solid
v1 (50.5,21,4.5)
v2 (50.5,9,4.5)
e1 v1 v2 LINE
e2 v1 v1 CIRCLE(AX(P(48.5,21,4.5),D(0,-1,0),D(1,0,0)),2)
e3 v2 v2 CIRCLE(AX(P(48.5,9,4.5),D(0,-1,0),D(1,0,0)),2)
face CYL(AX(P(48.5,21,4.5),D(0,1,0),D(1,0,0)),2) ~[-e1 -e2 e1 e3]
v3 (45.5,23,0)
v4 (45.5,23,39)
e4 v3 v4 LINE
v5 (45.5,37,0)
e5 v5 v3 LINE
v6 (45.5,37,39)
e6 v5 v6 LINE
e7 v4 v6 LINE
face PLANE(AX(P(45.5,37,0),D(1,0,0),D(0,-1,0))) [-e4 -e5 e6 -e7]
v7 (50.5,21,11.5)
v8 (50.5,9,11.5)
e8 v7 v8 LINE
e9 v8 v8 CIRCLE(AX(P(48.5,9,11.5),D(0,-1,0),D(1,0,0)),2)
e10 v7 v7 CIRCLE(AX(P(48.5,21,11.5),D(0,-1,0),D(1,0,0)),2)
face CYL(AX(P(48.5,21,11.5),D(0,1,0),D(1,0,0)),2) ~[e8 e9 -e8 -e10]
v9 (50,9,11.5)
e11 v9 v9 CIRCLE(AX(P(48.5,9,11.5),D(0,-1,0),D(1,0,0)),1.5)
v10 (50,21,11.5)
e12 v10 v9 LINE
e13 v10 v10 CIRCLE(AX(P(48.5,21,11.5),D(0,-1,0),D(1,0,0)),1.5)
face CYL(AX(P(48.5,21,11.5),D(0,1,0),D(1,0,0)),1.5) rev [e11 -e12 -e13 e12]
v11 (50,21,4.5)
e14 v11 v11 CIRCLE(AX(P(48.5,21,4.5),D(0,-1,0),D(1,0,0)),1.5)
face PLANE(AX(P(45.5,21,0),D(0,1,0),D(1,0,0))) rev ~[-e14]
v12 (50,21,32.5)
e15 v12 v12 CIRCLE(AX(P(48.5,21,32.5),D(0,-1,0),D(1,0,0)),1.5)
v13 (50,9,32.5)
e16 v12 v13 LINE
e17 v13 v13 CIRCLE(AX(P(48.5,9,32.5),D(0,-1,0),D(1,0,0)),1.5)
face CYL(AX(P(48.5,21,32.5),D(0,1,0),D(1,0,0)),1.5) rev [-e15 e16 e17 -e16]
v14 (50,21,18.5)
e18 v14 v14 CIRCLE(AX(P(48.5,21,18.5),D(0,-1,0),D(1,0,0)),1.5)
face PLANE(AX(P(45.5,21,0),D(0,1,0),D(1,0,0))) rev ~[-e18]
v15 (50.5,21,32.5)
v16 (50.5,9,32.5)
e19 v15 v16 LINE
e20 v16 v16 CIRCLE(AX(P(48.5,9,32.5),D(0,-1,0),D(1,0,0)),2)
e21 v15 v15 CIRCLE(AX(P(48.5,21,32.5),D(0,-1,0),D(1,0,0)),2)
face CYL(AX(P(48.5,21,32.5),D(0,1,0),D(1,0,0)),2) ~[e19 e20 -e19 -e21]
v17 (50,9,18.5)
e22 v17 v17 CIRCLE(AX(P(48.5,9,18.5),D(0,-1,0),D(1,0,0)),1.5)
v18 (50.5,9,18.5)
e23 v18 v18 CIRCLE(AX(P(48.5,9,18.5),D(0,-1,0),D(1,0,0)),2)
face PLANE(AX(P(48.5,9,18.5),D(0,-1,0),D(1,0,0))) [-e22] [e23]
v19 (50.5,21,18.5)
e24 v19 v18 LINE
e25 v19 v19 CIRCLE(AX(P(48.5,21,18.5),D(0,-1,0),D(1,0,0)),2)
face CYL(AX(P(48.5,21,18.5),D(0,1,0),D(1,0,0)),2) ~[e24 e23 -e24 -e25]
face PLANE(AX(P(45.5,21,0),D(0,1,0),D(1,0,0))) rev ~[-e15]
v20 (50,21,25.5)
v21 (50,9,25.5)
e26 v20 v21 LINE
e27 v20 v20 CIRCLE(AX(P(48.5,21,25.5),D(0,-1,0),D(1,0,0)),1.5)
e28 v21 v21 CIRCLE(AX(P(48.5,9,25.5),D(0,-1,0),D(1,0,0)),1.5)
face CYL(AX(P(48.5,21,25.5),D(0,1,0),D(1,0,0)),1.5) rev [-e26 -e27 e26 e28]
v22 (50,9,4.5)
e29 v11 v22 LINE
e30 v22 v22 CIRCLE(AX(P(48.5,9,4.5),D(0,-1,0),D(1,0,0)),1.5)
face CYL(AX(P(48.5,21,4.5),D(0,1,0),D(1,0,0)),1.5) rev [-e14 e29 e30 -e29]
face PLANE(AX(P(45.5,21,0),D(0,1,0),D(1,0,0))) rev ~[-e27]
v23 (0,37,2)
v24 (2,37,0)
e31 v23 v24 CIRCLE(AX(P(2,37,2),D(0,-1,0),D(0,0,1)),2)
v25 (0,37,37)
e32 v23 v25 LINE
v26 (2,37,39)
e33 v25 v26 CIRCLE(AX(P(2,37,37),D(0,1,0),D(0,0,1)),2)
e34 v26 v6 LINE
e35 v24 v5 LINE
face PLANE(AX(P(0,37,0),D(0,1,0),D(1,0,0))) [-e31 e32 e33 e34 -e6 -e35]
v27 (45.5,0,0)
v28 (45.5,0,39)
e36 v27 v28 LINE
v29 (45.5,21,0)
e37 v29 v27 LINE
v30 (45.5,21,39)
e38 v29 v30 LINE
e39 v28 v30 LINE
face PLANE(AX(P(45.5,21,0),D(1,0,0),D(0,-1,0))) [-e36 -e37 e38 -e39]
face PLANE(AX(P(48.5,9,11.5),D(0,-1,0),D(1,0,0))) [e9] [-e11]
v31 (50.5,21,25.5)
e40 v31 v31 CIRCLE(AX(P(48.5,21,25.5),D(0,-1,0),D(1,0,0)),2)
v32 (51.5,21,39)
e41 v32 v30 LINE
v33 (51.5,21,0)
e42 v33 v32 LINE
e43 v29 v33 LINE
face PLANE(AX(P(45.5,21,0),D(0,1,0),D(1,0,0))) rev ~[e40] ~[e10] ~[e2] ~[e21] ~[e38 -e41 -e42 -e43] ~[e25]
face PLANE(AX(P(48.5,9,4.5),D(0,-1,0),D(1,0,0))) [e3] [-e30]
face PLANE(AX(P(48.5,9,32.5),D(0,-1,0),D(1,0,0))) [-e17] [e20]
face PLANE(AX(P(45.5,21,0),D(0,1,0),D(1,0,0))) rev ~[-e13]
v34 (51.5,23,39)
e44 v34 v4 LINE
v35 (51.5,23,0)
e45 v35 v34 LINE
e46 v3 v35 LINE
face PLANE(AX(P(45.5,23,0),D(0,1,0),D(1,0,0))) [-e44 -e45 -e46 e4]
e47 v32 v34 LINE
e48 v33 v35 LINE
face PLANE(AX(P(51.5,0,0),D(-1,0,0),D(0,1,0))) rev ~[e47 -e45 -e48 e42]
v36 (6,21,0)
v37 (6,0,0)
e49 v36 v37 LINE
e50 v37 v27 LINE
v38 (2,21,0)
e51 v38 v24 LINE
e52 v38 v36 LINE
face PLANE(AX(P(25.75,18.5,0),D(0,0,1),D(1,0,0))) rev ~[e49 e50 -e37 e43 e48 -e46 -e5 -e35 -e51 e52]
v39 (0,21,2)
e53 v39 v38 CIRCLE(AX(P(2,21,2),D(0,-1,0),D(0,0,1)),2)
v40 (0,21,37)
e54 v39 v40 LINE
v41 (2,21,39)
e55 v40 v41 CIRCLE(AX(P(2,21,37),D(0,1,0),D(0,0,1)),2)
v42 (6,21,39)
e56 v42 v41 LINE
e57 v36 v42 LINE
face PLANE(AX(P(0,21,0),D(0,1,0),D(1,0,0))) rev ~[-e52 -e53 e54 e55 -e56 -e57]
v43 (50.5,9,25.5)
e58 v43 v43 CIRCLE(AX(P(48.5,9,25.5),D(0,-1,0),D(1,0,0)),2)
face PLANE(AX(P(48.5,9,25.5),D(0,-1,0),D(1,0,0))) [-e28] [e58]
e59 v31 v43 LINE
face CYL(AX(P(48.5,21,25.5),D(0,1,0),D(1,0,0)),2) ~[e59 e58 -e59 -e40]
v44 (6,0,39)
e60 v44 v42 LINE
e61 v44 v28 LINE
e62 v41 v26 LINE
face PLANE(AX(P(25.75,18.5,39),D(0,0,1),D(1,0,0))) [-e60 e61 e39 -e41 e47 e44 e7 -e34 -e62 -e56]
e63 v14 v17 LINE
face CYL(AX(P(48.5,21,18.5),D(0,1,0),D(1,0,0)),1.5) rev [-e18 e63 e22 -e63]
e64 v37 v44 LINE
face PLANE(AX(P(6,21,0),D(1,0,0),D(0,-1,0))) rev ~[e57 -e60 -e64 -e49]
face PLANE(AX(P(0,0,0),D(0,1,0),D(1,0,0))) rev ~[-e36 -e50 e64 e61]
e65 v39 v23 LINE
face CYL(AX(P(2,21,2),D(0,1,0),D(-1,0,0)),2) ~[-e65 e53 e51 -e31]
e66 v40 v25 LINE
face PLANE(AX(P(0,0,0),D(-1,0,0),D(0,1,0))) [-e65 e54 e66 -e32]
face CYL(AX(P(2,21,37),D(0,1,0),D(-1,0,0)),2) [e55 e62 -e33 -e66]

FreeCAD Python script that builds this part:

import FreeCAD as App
import Part
import Sketcher
from FreeCAD import Vector


def edges_at(feature, points):
    """Names of the edges that pass closest to the given points."""
    edges = feature.Shape.Edges
    near = lambda p: min(range(len(edges)), key=lambda i: edges[i].distToShape(Part.Vertex(*p))[0])
    return sorted({f"Edge{near(p) + 1}" for p in points})

doc = App.newDocument("Part")
params = doc.addObject("Spreadsheet::Sheet", "Params")
for row, (alias, value) in enumerate([
    ("sketch1_height", "37 mm"),
    ("sketch1_width", "51.5 mm"),
    ("pad1_length", "39 mm"),
    ("sketch2_width", "6 mm"),
    ("sketch2_height", "21 mm"),
    ("sketch2_height2", "14 mm"),
    ("sketch3_diameter", "4 mm"),
    ("sketch3_diameter2", "3 mm"),
    ("pad2_length", "12 mm"),
    ("fillet_radius", "2 mm"),
], start=1):
    params.set(f"A{row}", alias)
    params.set(f"B{row}", "=" + value)
    params.setAlias(f"B{row}", alias)

body = doc.addObject("PartDesign::Body", "Body")

# Sketch on XY plane
sketch1 = body.newObject("Sketcher::SketchObject", "Sketch")
sketch1.AttachmentSupport = (doc.getObject("XY_Plane"), [""])
sketch1.MapMode = "FlatFace"
sketch1.addGeometry([
    Part.LineSegment(Vector(0, 37, 0), Vector(0, 0, 0)),
    Part.LineSegment(Vector(0, 0, 0), Vector(52, 0, 0)),
    Part.LineSegment(Vector(52, 0, 0), Vector(52, 37, 0)),
    Part.LineSegment(Vector(52, 37, 0), Vector(0, 37, 0)),
], False)
sketch1.addConstraint([
    Sketcher.Constraint("Coincident", 0, 2, 1, 1),
    Sketcher.Constraint("Coincident", 1, 2, 2, 1),
    Sketcher.Constraint("Coincident", 2, 2, 3, 1),
    Sketcher.Constraint("Coincident", 3, 2, 0, 1),
    Sketcher.Constraint("Vertical", 0),
    Sketcher.Constraint("Horizontal", 1),
    Sketcher.Constraint("Vertical", 2),
    Sketcher.Constraint("Horizontal", 3),
    Sketcher.Constraint("Coincident", 0, 2, -1, 1),
    Sketcher.Constraint("DistanceY", 0, 2, 0, 1, 37.0),
    Sketcher.Constraint("DistanceX", 1, 1, 1, 2, 51.5),
])
sketch1.setExpression("Constraints[9]", "Params.sketch1_height")
sketch1.setExpression("Constraints[10]", "Params.sketch1_width")
pad1 = body.newObject("PartDesign::Pad", "Pad")
pad1.Profile = sketch1
pad1.setExpression("Length", "Params.pad1_length")

# Sketch on XY plane
sketch2 = body.newObject("Sketcher::SketchObject", "Sketch001")
sketch2.AttachmentSupport = (doc.getObject("XY_Plane"), [""])
sketch2.MapMode = "FlatFace"
sketch2.addGeometry([
    Part.LineSegment(Vector(0, 0, 0), Vector(0, 21, 0)),  # 0
    Part.LineSegment(Vector(0, 21, 0), Vector(6, 21, 0)),  # 1
    Part.LineSegment(Vector(6, 21, 0), Vector(6, 0, 0)),  # 2
    Part.LineSegment(Vector(6, 0, 0), Vector(0, 0, 0)),  # 3
    Part.LineSegment(Vector(46, 0, 0), Vector(46, 21, 0)),  # 4
    Part.LineSegment(Vector(46, 21, 0), Vector(52, 21, 0)),  # 5
    Part.LineSegment(Vector(52, 21, 0), Vector(52, 0, 0)),  # 6
    Part.LineSegment(Vector(52, 0, 0), Vector(46, 0, 0)),  # 7
    Part.LineSegment(Vector(46, 23, 0), Vector(46, 37, 0)),  # 8
    Part.LineSegment(Vector(46, 37, 0), Vector(52, 37, 0)),  # 9
    Part.LineSegment(Vector(52, 37, 0), Vector(52, 23, 0)),  # 10
    Part.LineSegment(Vector(52, 23, 0), Vector(46, 23, 0)),  # 11
], False)
sketch2.addConstraint([
    Sketcher.Constraint("Coincident", 0, 2, 1, 1),
    Sketcher.Constraint("Coincident", 1, 2, 2, 1),
    Sketcher.Constraint("Coincident", 2, 2, 3, 1),
    Sketcher.Constraint("Coincident", 3, 2, 0, 1),
    Sketcher.Constraint("Coincident", 4, 2, 5, 1),
    Sketcher.Constraint("Coincident", 5, 2, 6, 1),
    Sketcher.Constraint("Coincident", 6, 2, 7, 1),
    Sketcher.Constraint("Coincident", 7, 2, 4, 1),
    Sketcher.Constraint("Coincident", 8, 2, 9, 1),
    Sketcher.Constraint("Coincident", 9, 2, 10, 1),
    Sketcher.Constraint("Coincident", 10, 2, 11, 1),
    Sketcher.Constraint("Coincident", 11, 2, 8, 1),
    Sketcher.Constraint("Vertical", 0),
    Sketcher.Constraint("Horizontal", 1),
    Sketcher.Constraint("Vertical", 2),
    Sketcher.Constraint("Horizontal", 3),
    Sketcher.Constraint("Vertical", 4),
    Sketcher.Constraint("Horizontal", 5),
    Sketcher.Constraint("Vertical", 6),
    Sketcher.Constraint("Horizontal", 7),
    Sketcher.Constraint("Vertical", 8),
    Sketcher.Constraint("Horizontal", 9),
    Sketcher.Constraint("Vertical", 10),
    Sketcher.Constraint("Horizontal", 11),
    Sketcher.Constraint("Coincident", 3, 2, -1, 1),
    Sketcher.Constraint("PointOnObject", 6, 2, -1),
    Sketcher.Constraint("Horizontal", 1, 2, 4, 2),
    Sketcher.Constraint("Vertical", 7, 2, 8, 2),
    Sketcher.Constraint("Vertical", 6, 2, 9, 2),
    Sketcher.Constraint("Equal", 3, 5),
    Sketcher.Constraint("DistanceX", 1, 1, 1, 2, 6.0),
    Sketcher.Constraint("DistanceY", 0, 1, 0, 2, 21.0),
    Sketcher.Constraint("DistanceY", 8, 1, 8, 2, 14.0),
    Sketcher.Constraint("DistanceY", -1, 1, 8, 2, 37.0),
    Sketcher.Constraint("DistanceX", -1, 1, 4, 2, 45.5),
])
sketch2.setExpression("Constraints[30]", "Params.sketch2_width")
sketch2.setExpression("Constraints[31]", "Params.sketch2_height")
sketch2.setExpression("Constraints[32]", "Params.sketch2_height2")
pocket1 = body.newObject("PartDesign::Pocket", "Pocket")
pocket1.Profile = sketch2
pocket1.Type = "ThroughAll"
pocket1.Reversed = True

# Sketch on XZ plane
sketch3 = body.newObject("Sketcher::SketchObject", "Sketch002")
sketch3.AttachmentSupport = (doc.getObject("XZ_Plane"), [""])
sketch3.MapMode = "FlatFace"
sketch3.AttachmentOffset = App.Placement(Vector(0, 0, -21), App.Rotation())
sketch3.addGeometry([
    Part.Circle(Vector(48.5, 4.5, 0), Vector(0, 0, 1), 2),  # 0
    Part.Circle(Vector(48.5, 4.5, 0), Vector(0, 0, 1), 1.5),  # 1
    Part.Circle(Vector(48.5, 11.5, 0), Vector(0, 0, 1), 2),  # 2
    Part.Circle(Vector(48.5, 11.5, 0), Vector(0, 0, 1), 1.5),  # 3
    Part.Circle(Vector(48.5, 18.5, 0), Vector(0, 0, 1), 2),  # 4
    Part.Circle(Vector(48.5, 18.5, 0), Vector(0, 0, 1), 1.5),  # 5
    Part.Circle(Vector(48.5, 25.5, 0), Vector(0, 0, 1), 2),  # 6
    Part.Circle(Vector(48.5, 25.5, 0), Vector(0, 0, 1), 1.5),  # 7
    Part.Circle(Vector(48.5, 32.5, 0), Vector(0, 0, 1), 2),  # 8
    Part.Circle(Vector(48.5, 32.5, 0), Vector(0, 0, 1), 1.5),  # 9
], False)
sketch3.addConstraint([
    Sketcher.Constraint("Coincident", 1, 3, 0, 3),
    Sketcher.Constraint("Coincident", 3, 3, 2, 3),
    Sketcher.Constraint("Coincident", 5, 3, 4, 3),
    Sketcher.Constraint("Coincident", 7, 3, 6, 3),
    Sketcher.Constraint("Coincident", 9, 3, 8, 3),
    Sketcher.Constraint("Equal", 0, 2),
    Sketcher.Constraint("Equal", 1, 3),
    Sketcher.Constraint("Equal", 2, 4),
    Sketcher.Constraint("Equal", 3, 5),
    Sketcher.Constraint("Equal", 4, 6),
    Sketcher.Constraint("Equal", 5, 7),
    Sketcher.Constraint("Equal", 6, 8),
    Sketcher.Constraint("Equal", 7, 9),
    Sketcher.Constraint("Vertical", 1, 3, 2, 3),
    Sketcher.Constraint("Vertical", 3, 3, 4, 3),
    Sketcher.Constraint("Vertical", 5, 3, 6, 3),
    Sketcher.Constraint("Vertical", 7, 3, 8, 3),
    Sketcher.Constraint("Diameter", 0, 4.0),
    Sketcher.Constraint("Diameter", 1, 3.0),
    Sketcher.Constraint("DistanceY", 0, 3, 2, 3, 7.0),
    Sketcher.Constraint("DistanceY", 2, 3, 4, 3, 7.0),
    Sketcher.Constraint("DistanceY", 4, 3, 6, 3, 7.0),
    Sketcher.Constraint("DistanceY", 6, 3, 8, 3, 7.0),
    Sketcher.Constraint("DistanceX", -1, 1, 0, 3, 48.5),
    Sketcher.Constraint("DistanceY", -1, 1, 0, 3, 4.5),
])
sketch3.setExpression("Constraints[17]", "Params.sketch3_diameter")
sketch3.setExpression("Constraints[18]", "Params.sketch3_diameter2")
pad2 = body.newObject("PartDesign::Pad", "Pad001")
pad2.Profile = sketch3
pad2.setExpression("Length", "Params.pad2_length")
doc.recompute()

fillet = body.newObject("PartDesign::Fillet", "Fillet")
fillet.Base = (pad2, edges_at(pad2, [(0, 29, 0), (0, 29, 39)]))
fillet.setExpression("Radius", "Params.fillet_radius")

doc.recompute()
